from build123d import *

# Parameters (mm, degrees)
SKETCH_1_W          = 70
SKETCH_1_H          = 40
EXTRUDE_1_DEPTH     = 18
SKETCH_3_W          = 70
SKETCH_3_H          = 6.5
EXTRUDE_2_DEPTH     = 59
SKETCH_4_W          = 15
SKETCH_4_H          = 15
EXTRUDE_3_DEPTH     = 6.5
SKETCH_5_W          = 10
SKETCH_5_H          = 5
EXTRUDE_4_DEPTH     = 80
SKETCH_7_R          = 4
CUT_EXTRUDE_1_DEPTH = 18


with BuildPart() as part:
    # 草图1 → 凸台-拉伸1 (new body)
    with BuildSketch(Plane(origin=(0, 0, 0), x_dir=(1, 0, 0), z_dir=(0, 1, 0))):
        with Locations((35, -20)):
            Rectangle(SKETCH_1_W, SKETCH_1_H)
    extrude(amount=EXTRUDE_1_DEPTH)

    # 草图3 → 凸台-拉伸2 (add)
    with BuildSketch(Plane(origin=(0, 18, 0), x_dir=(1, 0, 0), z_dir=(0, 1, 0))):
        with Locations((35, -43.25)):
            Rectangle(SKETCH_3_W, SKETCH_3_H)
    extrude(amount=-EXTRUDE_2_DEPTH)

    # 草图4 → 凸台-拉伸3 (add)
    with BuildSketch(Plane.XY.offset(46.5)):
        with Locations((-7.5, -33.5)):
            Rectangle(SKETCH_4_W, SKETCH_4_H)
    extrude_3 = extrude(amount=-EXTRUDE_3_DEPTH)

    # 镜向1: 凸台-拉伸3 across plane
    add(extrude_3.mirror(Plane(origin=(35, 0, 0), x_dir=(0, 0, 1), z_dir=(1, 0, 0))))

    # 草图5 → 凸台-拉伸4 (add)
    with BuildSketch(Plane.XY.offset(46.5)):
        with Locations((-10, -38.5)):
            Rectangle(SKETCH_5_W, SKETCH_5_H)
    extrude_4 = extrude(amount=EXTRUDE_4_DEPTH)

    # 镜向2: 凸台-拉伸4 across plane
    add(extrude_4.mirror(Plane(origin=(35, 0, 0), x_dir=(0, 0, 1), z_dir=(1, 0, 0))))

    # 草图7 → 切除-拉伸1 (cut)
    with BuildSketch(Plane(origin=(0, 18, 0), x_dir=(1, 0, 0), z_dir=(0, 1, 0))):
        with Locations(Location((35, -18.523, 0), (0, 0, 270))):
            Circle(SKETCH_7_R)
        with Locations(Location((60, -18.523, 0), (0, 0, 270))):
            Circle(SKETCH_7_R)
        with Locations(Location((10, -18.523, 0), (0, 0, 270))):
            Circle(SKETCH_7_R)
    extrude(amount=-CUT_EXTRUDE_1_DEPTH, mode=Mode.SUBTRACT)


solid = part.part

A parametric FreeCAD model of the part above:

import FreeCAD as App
import Part
import Sketcher
from FreeCAD import Vector

doc = App.newDocument("Part")
body = doc.addObject("PartDesign::Body", "Body")

# Sketch on XZ plane
sketch1 = doc.addObject("Sketcher::SketchObject", "Sketch")
body.addObject(sketch1)
sketch1.AttachmentSupport = (doc.XZ_Plane, [""])
sketch1.MapMode = "FlatFace"
sketch1.addGeometry([
    Part.LineSegment(Vector(0, 0, 0), Vector(0, 40, 0)),
    Part.LineSegment(Vector(0, 40, 0), Vector(70, 40, 0)),
    Part.LineSegment(Vector(70, 40, 0), Vector(70, 0, 0)),
    Part.LineSegment(Vector(70, 0, 0), Vector(0, 0, 0)),
], False)
sketch1.addConstraint([
    Sketcher.Constraint("Coincident", 0, 2, 1, 1),
    Sketcher.Constraint("Coincident", 1, 2, 2, 1),
    Sketcher.Constraint("Coincident", 2, 2, 3, 1),
    Sketcher.Constraint("Coincident", 3, 2, 0, 1),
    Sketcher.Constraint("Vertical", 0),
    Sketcher.Constraint("Horizontal", 1),
    Sketcher.Constraint("Vertical", 2),
    Sketcher.Constraint("Horizontal", 3),
    Sketcher.Constraint("Coincident", 3, 2, -1, 1),
    Sketcher.Constraint("DistanceX", 1, 1, 1, 2, 70.0),
    Sketcher.Constraint("DistanceY", 0, 1, 0, 2, 40.0),
])
pad1 = doc.addObject("PartDesign::Pad", "Pad")
body.addObject(pad1)
pad1.Profile = sketch1
pad1.Length = 18
pad1.Reversed = True

# Sketch on XZ plane
sketch2 = doc.addObject("Sketcher::SketchObject", "Sketch001")
body.addObject(sketch2)
sketch2.AttachmentSupport = (doc.XZ_Plane, [""])
sketch2.MapMode = "FlatFace"
sketch2.AttachmentOffset = App.Placement(Vector(0, 0, -18), App.Rotation())
sketch2.addGeometry([
    Part.LineSegment(Vector(0, 40, 0), Vector(0, 46, 0)),
    Part.LineSegment(Vector(0, 46, 0), Vector(70, 46, 0)),
    Part.LineSegment(Vector(70, 46, 0), Vector(70, 40, 0)),
    Part.LineSegment(Vector(70, 40, 0), Vector(0, 40, 0)),
], False)
sketch2.addConstraint([
    Sketcher.Constraint("Coincident", 0, 2, 1, 1),
    Sketcher.Constraint("Coincident", 1, 2, 2, 1),
    Sketcher.Constraint("Coincident", 2, 2, 3, 1),
    Sketcher.Constraint("Coincident", 3, 2, 0, 1),
    Sketcher.Constraint("Vertical", 0),
    Sketcher.Constraint("Horizontal", 1),
    Sketcher.Constraint("Vertical", 2),
    Sketcher.Constraint("Horizontal", 3),
    Sketcher.Constraint("PointOnObject", 0, 2, -2),
    Sketcher.Constraint("DistanceX", 1, 1, 1, 2, 70.0),
    Sketcher.Constraint("DistanceY", 0, 1, 0, 2, 6.5),
    Sketcher.Constraint("DistanceY", -1, 1, 2, 2, 40.0),
])
pad2 = doc.addObject("PartDesign::Pad", "Pad001")
body.addObject(pad2)
pad2.Profile = sketch2
pad2.Length = 59

# Sketch on XY plane
sketch3 = doc.addObject("Sketcher::SketchObject", "Sketch002")
body.addObject(sketch3)
sketch3.AttachmentSupport = (doc.XY_Plane, [""])
sketch3.MapMode = "FlatFace"
sketch3.AttachmentOffset = App.Placement(Vector(0, 0, 46.5), App.Rotation())
sketch3.addGeometry([
    Part.LineSegment(Vector(-15, -26, 0), Vector(-15, -41, 0)),
    Part.LineSegment(Vector(-15, -41, 0), Vector(0, -41, 0)),
    Part.LineSegment(Vector(0, -41, 0), Vector(0, -26, 0)),
    Part.LineSegment(Vector(0, -26, 0), Vector(-15, -26, 0)),
], False)
sketch3.addConstraint([
    Sketcher.Constraint("Coincident", 0, 2, 1, 1),
    Sketcher.Constraint("Coincident", 1, 2, 2, 1),
    Sketcher.Constraint("Coincident", 2, 2, 3, 1),
    Sketcher.Constraint("Coincident", 3, 2, 0, 1),
    Sketcher.Constraint("Vertical", 0),
    Sketcher.Constraint("Horizontal", 1),
    Sketcher.Constraint("Vertical", 2),
    Sketcher.Constraint("Horizontal", 3),
    Sketcher.Constraint("PointOnObject", 1, 2, -2),
    Sketcher.Constraint("Equal", 3, 0),
    Sketcher.Constraint("DistanceX", 1, 1, 1, 2, 15.0),
    Sketcher.Constraint("DistanceY", 0, 2, -1, 1, 41.0),
])
pad3 = doc.addObject("PartDesign::Pad", "Pad002")
body.addObject(pad3)
pad3.Profile = sketch3
pad3.Length = 6.5
pad3.Reversed = True
doc.recompute()

datumplane = doc.addObject("PartDesign::Plane", "DatumPlane")
body.addObject(datumplane)
datumplane.AttachmentSupport = (doc.YZ_Plane, [""])
datumplane.MapMode = "FlatFace"
datumplane.AttachmentOffset = App.Placement(Vector(0, 0, 35), App.Rotation())
mirrored = doc.addObject("PartDesign::Mirrored", "Mirrored")
body.addObject(mirrored)
mirrored.Originals = [pad3]
mirrored.MirrorPlane = (datumplane, [""])
body.Tip = mirrored

# Sketch on XY plane
sketch4 = doc.addObject("Sketcher::SketchObject", "Sketch003")
body.addObject(sketch4)
sketch4.AttachmentSupport = (doc.XY_Plane, [""])
sketch4.MapMode = "FlatFace"
sketch4.AttachmentOffset = App.Placement(Vector(0, 0, 46.5), App.Rotation())
sketch4.addGeometry([
    Part.LineSegment(Vector(-15, -36, 0), Vector(-15, -41, 0)),
    Part.LineSegment(Vector(-15, -41, 0), Vector(-5, -41, 0)),
    Part.LineSegment(Vector(-5, -41, 0), Vector(-5, -36, 0)),
    Part.LineSegment(Vector(-5, -36, 0), Vector(-15, -36, 0)),
], False)
sketch4.addConstraint([
    Sketcher.Constraint("Coincident", 0, 2, 1, 1),
    Sketcher.Constraint("Coincident", 1, 2, 2, 1),
    Sketcher.Constraint("Coincident", 2, 2, 3, 1),
    Sketcher.Constraint("Coincident", 3, 2, 0, 1),
    Sketcher.Constraint("Vertical", 0),
    Sketcher.Constraint("Horizontal", 1),
    Sketcher.Constraint("Vertical", 2),
    Sketcher.Constraint("Horizontal", 3),
    Sketcher.Constraint("DistanceX", 1, 1, 1, 2, 10.0),
    Sketcher.Constraint("DistanceY", 0, 2, 0, 1, 5.0),
    Sketcher.Constraint("DistanceX", 0, 2, -1, 1, 15.0),
    Sketcher.Constraint("DistanceY", 0, 2, -1, 1, 41.0),
])
pad4 = doc.addObject("PartDesign::Pad", "Pad003")
body.addObject(pad4)
pad4.Profile = sketch4
pad4.Length = 80
doc.recompute()

datumplane2 = doc.addObject("PartDesign::Plane", "DatumPlane001")
body.addObject(datumplane2)
datumplane2.AttachmentSupport = (doc.YZ_Plane, [""])
datumplane2.MapMode = "FlatFace"
datumplane2.AttachmentOffset = App.Placement(Vector(0, 0, 35), App.Rotation())
mirrored2 = doc.addObject("PartDesign::Mirrored", "Mirrored001")
body.addObject(mirrored2)
mirrored2.Originals = [pad4]
mirrored2.MirrorPlane = (datumplane2, [""])
body.Tip = mirrored2

# Sketch on XZ plane
sketch5 = doc.addObject("Sketcher::SketchObject", "Sketch004")
body.addObject(sketch5)
sketch5.AttachmentSupport = (doc.XZ_Plane, [""])
sketch5.MapMode = "FlatFace"
sketch5.AttachmentOffset = App.Placement(Vector(0, 0, -18), App.Rotation())
sketch5.addGeometry([
    Part.Circle(Vector(35, 18.5, 0), Vector(0, 0, 1), 4),
    Part.Circle(Vector(60, 18.5, 0), Vector(0, 0, 1), 4),
    Part.Circle(Vector(10, 18.5, 0), Vector(0, 0, 1), 4),
], False)
sketch5.addConstraint([
    Sketcher.Constraint("Equal", 0, 1),
    Sketcher.Constraint("Equal", 1, 2),
    Sketcher.Constraint("Horizontal", 0, 3, 1, 3),
    Sketcher.Constraint("Horizontal", 1, 3, 2, 3),
    Sketcher.Constraint("Diameter", 0, 8.0),
    Sketcher.Constraint("DistanceX", -1, 1, 0, 3, 35.0),
    Sketcher.Constraint("DistanceX", -1, 1, 1, 3, 60.0),
    Sketcher.Constraint("DistanceX", -1, 1, 2, 3, 10.0),
    Sketcher.Constraint("DistanceY", -1, 1, 0, 3, 18.523),
])
pocket1 = doc.addObject("PartDesign::Pocket", "Pocket")
body.addObject(pocket1)
pocket1.Profile = sketch5
pocket1.Length = 18
pocket1.Reversed = True

doc.recompute()
